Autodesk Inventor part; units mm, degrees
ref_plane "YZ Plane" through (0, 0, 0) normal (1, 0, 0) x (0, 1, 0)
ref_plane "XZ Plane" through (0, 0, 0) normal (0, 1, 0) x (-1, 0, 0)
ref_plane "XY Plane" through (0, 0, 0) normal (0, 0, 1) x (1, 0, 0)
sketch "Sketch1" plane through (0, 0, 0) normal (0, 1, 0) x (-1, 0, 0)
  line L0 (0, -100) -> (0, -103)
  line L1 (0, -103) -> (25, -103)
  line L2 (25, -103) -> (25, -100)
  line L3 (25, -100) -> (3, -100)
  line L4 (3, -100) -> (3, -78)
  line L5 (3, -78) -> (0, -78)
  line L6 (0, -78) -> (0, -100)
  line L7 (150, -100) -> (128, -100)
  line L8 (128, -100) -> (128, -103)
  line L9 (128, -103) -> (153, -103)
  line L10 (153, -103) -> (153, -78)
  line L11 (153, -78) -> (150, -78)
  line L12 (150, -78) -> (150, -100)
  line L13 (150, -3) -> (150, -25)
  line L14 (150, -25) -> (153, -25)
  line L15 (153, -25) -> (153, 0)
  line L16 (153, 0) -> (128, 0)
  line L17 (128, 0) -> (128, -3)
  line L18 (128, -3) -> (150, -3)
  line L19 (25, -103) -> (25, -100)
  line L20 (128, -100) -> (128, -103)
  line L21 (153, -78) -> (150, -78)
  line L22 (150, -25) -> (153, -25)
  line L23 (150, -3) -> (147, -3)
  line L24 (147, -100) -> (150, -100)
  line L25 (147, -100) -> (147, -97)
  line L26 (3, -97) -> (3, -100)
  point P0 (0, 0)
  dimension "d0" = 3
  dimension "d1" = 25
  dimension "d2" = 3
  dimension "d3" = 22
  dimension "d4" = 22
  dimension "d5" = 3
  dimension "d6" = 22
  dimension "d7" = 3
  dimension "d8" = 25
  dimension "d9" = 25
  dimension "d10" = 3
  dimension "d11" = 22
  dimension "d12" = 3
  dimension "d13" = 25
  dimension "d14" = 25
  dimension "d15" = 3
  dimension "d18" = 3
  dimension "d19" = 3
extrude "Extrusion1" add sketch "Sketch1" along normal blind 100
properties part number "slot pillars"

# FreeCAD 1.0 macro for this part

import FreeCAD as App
import Part
import Sketcher
from FreeCAD import Vector
Q = App.Units.Quantity


def add_polygon(sketch, points):
    """Adds a closed chain of lines whose ends are joined by coincident constraints."""
    first, n = sketch.GeometryCount, len(points)
    for a, b in zip(points, points[1:] + points[:1]):
        sketch.addGeometry(Part.LineSegment(App.Vector(*a, 0), App.Vector(*b, 0)), False)
    for i in range(n):
        sketch.addConstraint(Sketcher.Constraint("Coincident", first + i, 2, first + (i + 1) % n, 1))

doc = App.newDocument("Part")
body = doc.addObject("PartDesign::Body", "Body")
body.AllowCompound = True

# Sketch on XZ plane
sketch1 = body.newObject("Sketcher::SketchObject", "Sketch")
sketch1.AttachmentSupport = (doc.getObject("XZ_Plane"), [""])
sketch1.MapMode = "FlatFace"
add_polygon(sketch1, [(0, -78), (0, -103), (-25, -103), (-25, -100), (-3, -100), (-3, -78)])  # lines 0-5
add_polygon(sketch1, [(-150, -78), (-150, -100), (-128, -100), (-128, -103), (-153, -103), (-153, -78)])  # lines 6-11
add_polygon(sketch1, [(-128, -3), (-150, -3), (-150, -25), (-153, -25), (-153, 0), (-128, 0)])  # lines 12-17
sketch1.addConstraint([
    Sketcher.Constraint("Vertical", 0),
    Sketcher.Constraint("Horizontal", 1),
    Sketcher.Constraint("Vertical", 2),
    Sketcher.Constraint("Horizontal", 3),
    Sketcher.Constraint("Vertical", 4),
    Sketcher.Constraint("Horizontal", 5),
    Sketcher.Constraint("Vertical", 6),
    Sketcher.Constraint("Horizontal", 7),
    Sketcher.Constraint("Vertical", 8),
    Sketcher.Constraint("Horizontal", 9),
    Sketcher.Constraint("Vertical", 10),
    Sketcher.Constraint("Horizontal", 11),
    Sketcher.Constraint("Horizontal", 12),
    Sketcher.Constraint("Vertical", 13),
    Sketcher.Constraint("Horizontal", 14),
    Sketcher.Constraint("Vertical", 15),
    Sketcher.Constraint("Horizontal", 16),
    Sketcher.Constraint("Vertical", 17),
    Sketcher.Constraint("PointOnObject", 0, 2, -2),
    Sketcher.Constraint("PointOnObject", 15, 2, -1),
    Sketcher.Constraint("Horizontal", 3, 2, 6, 2),
    Sketcher.Constraint("Horizontal", 1, 2, 8, 2),
    Sketcher.Constraint("Horizontal", 5, 2, 10, 2),
    Sketcher.Constraint("Vertical", 11, 2, 12, 2),
    Sketcher.Constraint("Vertical", 10, 2, 14, 2),
    Sketcher.Constraint("Vertical", 8, 2, 16, 2),
    Sketcher.Constraint("Equal", 3, 7),
    Sketcher.Constraint("Equal", 1, 9),
    Sketcher.Constraint("Equal", 16, 0),
    Sketcher.Constraint("Equal", 14, 2),
    Sketcher.Constraint("Equal", 6, 13),
    Sketcher.Constraint("Equal", 10, 15),
    Sketcher.Constraint("DistanceX", 1, 2, 1, 1, Q("25 mm")),
    Sketcher.Constraint("DistanceX", 3, 1, 3, 2, Q("22 mm")),
    Sketcher.Constraint("DistanceY", 0, 2, -1, 1, Q("103 mm")),
    Sketcher.Constraint("DistanceX", 6, 2, -1, 1, Q("150 mm")),
])
pad1 = body.newObject("PartDesign::Pad", "Pad")
pad1.Profile = sketch1
pad1.Length = 100
pad1.Reversed = True

doc.recompute()
